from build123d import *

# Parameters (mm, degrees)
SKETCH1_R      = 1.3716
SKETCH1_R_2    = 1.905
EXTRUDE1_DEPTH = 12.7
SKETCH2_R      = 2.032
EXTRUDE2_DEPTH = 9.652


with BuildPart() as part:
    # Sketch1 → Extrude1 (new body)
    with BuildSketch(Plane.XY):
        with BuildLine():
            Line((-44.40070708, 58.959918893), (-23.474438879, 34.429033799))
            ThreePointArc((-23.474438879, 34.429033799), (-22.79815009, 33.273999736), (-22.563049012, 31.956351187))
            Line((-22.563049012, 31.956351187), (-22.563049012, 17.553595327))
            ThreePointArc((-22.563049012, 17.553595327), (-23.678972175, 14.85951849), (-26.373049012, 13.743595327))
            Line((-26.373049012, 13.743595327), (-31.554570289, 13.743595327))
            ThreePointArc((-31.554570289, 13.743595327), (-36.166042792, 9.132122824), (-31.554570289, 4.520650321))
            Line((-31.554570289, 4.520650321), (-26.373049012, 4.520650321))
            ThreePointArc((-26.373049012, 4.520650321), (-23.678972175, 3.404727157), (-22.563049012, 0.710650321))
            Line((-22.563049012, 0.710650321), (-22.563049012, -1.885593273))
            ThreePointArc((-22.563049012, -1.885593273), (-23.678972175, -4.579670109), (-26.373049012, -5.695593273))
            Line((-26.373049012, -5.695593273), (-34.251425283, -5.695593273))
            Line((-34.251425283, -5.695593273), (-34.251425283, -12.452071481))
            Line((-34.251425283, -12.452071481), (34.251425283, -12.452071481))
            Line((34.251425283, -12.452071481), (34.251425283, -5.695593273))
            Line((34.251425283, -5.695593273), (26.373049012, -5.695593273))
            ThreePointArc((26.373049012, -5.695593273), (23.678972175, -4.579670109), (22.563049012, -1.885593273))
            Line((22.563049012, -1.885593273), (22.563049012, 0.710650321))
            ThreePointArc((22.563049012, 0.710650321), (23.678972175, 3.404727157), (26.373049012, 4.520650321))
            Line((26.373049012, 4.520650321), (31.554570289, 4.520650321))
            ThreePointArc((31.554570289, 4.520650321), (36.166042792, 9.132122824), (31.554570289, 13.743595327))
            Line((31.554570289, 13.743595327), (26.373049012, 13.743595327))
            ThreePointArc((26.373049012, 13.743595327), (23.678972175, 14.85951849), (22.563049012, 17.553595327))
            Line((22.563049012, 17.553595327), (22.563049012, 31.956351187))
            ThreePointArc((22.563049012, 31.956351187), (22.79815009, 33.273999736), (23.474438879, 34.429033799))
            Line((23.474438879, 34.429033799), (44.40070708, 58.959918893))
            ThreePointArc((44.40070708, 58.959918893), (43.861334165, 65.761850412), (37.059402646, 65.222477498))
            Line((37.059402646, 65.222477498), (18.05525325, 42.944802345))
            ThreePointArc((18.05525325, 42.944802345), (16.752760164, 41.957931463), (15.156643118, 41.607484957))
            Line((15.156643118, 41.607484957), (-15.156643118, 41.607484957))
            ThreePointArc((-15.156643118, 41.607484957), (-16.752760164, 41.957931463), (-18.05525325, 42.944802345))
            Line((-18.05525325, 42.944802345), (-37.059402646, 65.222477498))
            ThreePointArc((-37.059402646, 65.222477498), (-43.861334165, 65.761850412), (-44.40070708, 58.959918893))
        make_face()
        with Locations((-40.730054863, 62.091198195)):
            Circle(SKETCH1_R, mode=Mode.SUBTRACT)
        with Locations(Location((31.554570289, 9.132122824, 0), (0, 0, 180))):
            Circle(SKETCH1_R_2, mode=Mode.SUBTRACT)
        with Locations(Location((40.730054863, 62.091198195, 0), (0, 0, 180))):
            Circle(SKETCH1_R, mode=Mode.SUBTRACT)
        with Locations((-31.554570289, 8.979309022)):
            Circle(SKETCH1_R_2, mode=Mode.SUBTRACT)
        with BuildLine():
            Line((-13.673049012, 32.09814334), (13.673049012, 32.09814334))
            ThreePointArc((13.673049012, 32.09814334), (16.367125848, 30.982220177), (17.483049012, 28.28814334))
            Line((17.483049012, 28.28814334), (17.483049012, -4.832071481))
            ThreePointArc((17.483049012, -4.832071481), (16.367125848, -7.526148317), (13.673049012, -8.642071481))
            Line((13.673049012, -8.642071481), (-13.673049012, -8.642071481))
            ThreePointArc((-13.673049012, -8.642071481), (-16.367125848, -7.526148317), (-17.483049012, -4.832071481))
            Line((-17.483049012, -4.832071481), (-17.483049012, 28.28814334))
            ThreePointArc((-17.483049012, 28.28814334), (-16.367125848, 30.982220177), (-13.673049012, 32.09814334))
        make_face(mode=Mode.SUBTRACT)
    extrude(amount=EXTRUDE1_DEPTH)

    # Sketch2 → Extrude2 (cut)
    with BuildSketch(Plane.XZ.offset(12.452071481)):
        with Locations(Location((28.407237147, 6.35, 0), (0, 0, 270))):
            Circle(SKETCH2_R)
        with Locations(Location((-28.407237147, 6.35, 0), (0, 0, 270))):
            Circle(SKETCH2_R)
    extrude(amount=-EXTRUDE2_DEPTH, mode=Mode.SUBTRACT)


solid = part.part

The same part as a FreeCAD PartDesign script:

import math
import FreeCAD as App
import Part
import Sketcher
Q = App.Units.Quantity

doc = App.newDocument("Part")
body = doc.addObject("PartDesign::Body", "Body")

sketch1 = doc.addObject("Sketcher::SketchObject", "Sketch")
body.addObject(sketch1)
sketch1.AttachmentSupport = (doc.XY_Plane, [""])
sketch1.MapMode = "FlatFace"
sketch1.addGeometry(Part.LineSegment(App.Vector(-44.4, 59, 0), App.Vector(-23.5, 34.4, 0)), False)
sketch1.addGeometry(Part.ArcOfCircle(Part.Circle(App.Vector(-26.4, 32, 0), App.Vector(0, 0, 1), 3.8), math.radians(0), math.radians(40)), False)
sketch1.addGeometry(Part.LineSegment(App.Vector(-22.6, 32, 0), App.Vector(-22.6, 17.6, 0)), False)
sketch1.addGeometry(Part.ArcOfCircle(Part.Circle(App.Vector(-26.4, 17.6, 0), App.Vector(0, 0, 1), 3.8), math.radians(-90), math.radians(0)), False)
sketch1.addGeometry(Part.LineSegment(App.Vector(-26.4, 13.7, 0), App.Vector(-31.6, 13.7, 0)), False)
sketch1.addGeometry(Part.ArcOfCircle(Part.Circle(App.Vector(-31.6, 9.1, 0), App.Vector(0, 0, 1), 4.6), math.radians(90), math.radians(270)), False)
sketch1.addGeometry(Part.LineSegment(App.Vector(-31.6, 4.5, 0), App.Vector(-26.4, 4.5, 0)), False)
sketch1.addGeometry(Part.ArcOfCircle(Part.Circle(App.Vector(-26.4, 0.7, 0), App.Vector(0, 0, 1), 3.8), math.radians(0), math.radians(90)), False)
sketch1.addGeometry(Part.LineSegment(App.Vector(-22.6, 0.7, 0), App.Vector(-22.6, -1.9, 0)), False)
sketch1.addGeometry(Part.ArcOfCircle(Part.Circle(App.Vector(-26.4, -1.9, 0), App.Vector(0, 0, 1), 3.8), math.radians(-90), math.radians(0)), False)
sketch1.addGeometry(Part.LineSegment(App.Vector(-26.4, -5.7, 0), App.Vector(-34.3, -5.7, 0)), False)
sketch1.addGeometry(Part.LineSegment(App.Vector(-34.3, -5.7, 0), App.Vector(-34.3, -12.5, 0)), False)
sketch1.addGeometry(Part.LineSegment(App.Vector(-34.3, -12.5, 0), App.Vector(34.3, -12.5, 0)), False)
sketch1.addGeometry(Part.LineSegment(App.Vector(34.3, -12.5, 0), App.Vector(34.3, -5.7, 0)), False)
sketch1.addGeometry(Part.LineSegment(App.Vector(34.3, -5.7, 0), App.Vector(26.4, -5.7, 0)), False)
sketch1.addGeometry(Part.ArcOfCircle(Part.Circle(App.Vector(26.4, -1.9, 0), App.Vector(0, 0, 1), 3.8), math.radians(180), math.radians(270)), False)
sketch1.addGeometry(Part.LineSegment(App.Vector(22.6, -1.9, 0), App.Vector(22.6, 0.7, 0)), False)
sketch1.addGeometry(Part.ArcOfCircle(Part.Circle(App.Vector(26.4, 0.7, 0), App.Vector(0, 0, 1), 3.8), math.radians(90), math.radians(180)), False)
sketch1.addGeometry(Part.LineSegment(App.Vector(26.4, 4.5, 0), App.Vector(31.6, 4.5, 0)), False)
sketch1.addGeometry(Part.ArcOfCircle(Part.Circle(App.Vector(31.6, 9.1, 0), App.Vector(0, 0, 1), 4.6), math.radians(-90), math.radians(90)), False)
sketch1.addGeometry(Part.LineSegment(App.Vector(31.6, 13.7, 0), App.Vector(26.4, 13.7, 0)), False)
sketch1.addGeometry(Part.ArcOfCircle(Part.Circle(App.Vector(26.4, 17.6, 0), App.Vector(0, 0, 1), 3.8), math.radians(180), math.radians(270)), False)
sketch1.addGeometry(Part.LineSegment(App.Vector(22.6, 17.6, 0), App.Vector(22.6, 32, 0)), False)
sketch1.addGeometry(Part.ArcOfCircle(Part.Circle(App.Vector(26.4, 32, 0), App.Vector(0, 0, 1), 3.8), math.radians(140), math.radians(180)), False)
sketch1.addGeometry(Part.LineSegment(App.Vector(23.5, 34.4, 0), App.Vector(44.4, 59, 0)), False)
sketch1.addGeometry(Part.ArcOfCircle(Part.Circle(App.Vector(40.7, 62.1, 0), App.Vector(0, 0, 1), 4.8), math.radians(-40), math.radians(140)), False)
sketch1.addGeometry(Part.LineSegment(App.Vector(37.1, 65.2, 0), App.Vector(18.1, 42.9, 0)), False)
sketch1.addGeometry(Part.ArcOfCircle(Part.Circle(App.Vector(15.2, 45.4, 0), App.Vector(0, 0, 1), 3.8), math.radians(-90), math.radians(-40)), False)
sketch1.addGeometry(Part.LineSegment(App.Vector(15.2, 41.6, 0), App.Vector(-15.2, 41.6, 0)), False)
sketch1.addGeometry(Part.ArcOfCircle(Part.Circle(App.Vector(-15.2, 45.4, 0), App.Vector(0, 0, 1), 3.8), math.radians(-140), math.radians(-90)), False)
sketch1.addGeometry(Part.LineSegment(App.Vector(-18.1, 42.9, 0), App.Vector(-37.1, 65.2, 0)), False)
sketch1.addGeometry(Part.ArcOfCircle(Part.Circle(App.Vector(-40.7, 62.1, 0), App.Vector(0, 0, 1), 4.8), math.radians(40), math.radians(220)), False)
sketch1.addGeometry(Part.Circle(App.Vector(-31.6, 9, 0), App.Vector(0, 0, 1), 1.9), False)
sketch1.addGeometry(Part.Circle(App.Vector(31.6, 9.1, 0), App.Vector(0, 0, 1), 1.9), False)
sketch1.addGeometry(Part.ArcOfCircle(Part.Circle(App.Vector(-13.7, 28.3, 0), App.Vector(0, 0, 1), 3.8), math.radians(90), math.radians(180)), False)
sketch1.addGeometry(Part.LineSegment(App.Vector(-13.7, 32.1, 0), App.Vector(13.7, 32.1, 0)), False)
sketch1.addGeometry(Part.ArcOfCircle(Part.Circle(App.Vector(13.7, 28.3, 0), App.Vector(0, 0, 1), 3.8), math.radians(0), math.radians(90)), False)
sketch1.addGeometry(Part.LineSegment(App.Vector(17.5, 28.3, 0), App.Vector(17.5, -4.8, 0)), False)
sketch1.addGeometry(Part.ArcOfCircle(Part.Circle(App.Vector(13.7, -4.8, 0), App.Vector(0, 0, 1), 3.8), math.radians(-90), math.radians(0)), False)
sketch1.addGeometry(Part.LineSegment(App.Vector(13.7, -8.6, 0), App.Vector(-13.7, -8.6, 0)), False)
sketch1.addGeometry(Part.ArcOfCircle(Part.Circle(App.Vector(-13.7, -4.8, 0), App.Vector(0, 0, 1), 3.8), math.radians(-180), math.radians(-90)), False)
sketch1.addGeometry(Part.LineSegment(App.Vector(-17.5, -4.8, 0), App.Vector(-17.5, 28.3, 0)), False)
sketch1.addGeometry(Part.Circle(App.Vector(-40.7, 62.1, 0), App.Vector(0, 0, 1), 1.4), False)
sketch1.addGeometry(Part.Circle(App.Vector(40.7, 62.1, 0), App.Vector(0, 0, 1), 1.4), False)
sketch1.addConstraint(Sketcher.Constraint("Tangent", 0, 2, 1, 2))
sketch1.addConstraint(Sketcher.Constraint("Tangent", 1, 1, 2, 1))
sketch1.addConstraint(Sketcher.Constraint("Tangent", 2, 2, 3, 2))
sketch1.addConstraint(Sketcher.Constraint("Tangent", 3, 1, 4, 1))
sketch1.addConstraint(Sketcher.Constraint("Tangent", 4, 2, 5, 1))
sketch1.addConstraint(Sketcher.Constraint("Tangent", 5, 2, 6, 1))
sketch1.addConstraint(Sketcher.Constraint("Tangent", 6, 2, 7, 2))
sketch1.addConstraint(Sketcher.Constraint("Tangent", 7, 1, 8, 1))
sketch1.addConstraint(Sketcher.Constraint("Tangent", 8, 2, 9, 2))
sketch1.addConstraint(Sketcher.Constraint("Tangent", 9, 1, 10, 1))
sketch1.addConstraint(Sketcher.Constraint("Coincident", 10, 2, 11, 1))
sketch1.addConstraint(Sketcher.Constraint("Coincident", 11, 2, 12, 1))
sketch1.addConstraint(Sketcher.Constraint("Coincident", 12, 2, 13, 1))
sketch1.addConstraint(Sketcher.Constraint("Coincident", 13, 2, 14, 1))
sketch1.addConstraint(Sketcher.Constraint("Tangent", 14, 2, 15, 2))
sketch1.addConstraint(Sketcher.Constraint("Tangent", 15, 1, 16, 1))
sketch1.addConstraint(Sketcher.Constraint("Tangent", 16, 2, 17, 2))
sketch1.addConstraint(Sketcher.Constraint("Tangent", 17, 1, 18, 1))
sketch1.addConstraint(Sketcher.Constraint("Tangent", 18, 2, 19, 1))
sketch1.addConstraint(Sketcher.Constraint("Tangent", 19, 2, 20, 1))
sketch1.addConstraint(Sketcher.Constraint("Tangent", 20, 2, 21, 2))
sketch1.addConstraint(Sketcher.Constraint("Tangent", 21, 1, 22, 1))
sketch1.addConstraint(Sketcher.Constraint("Tangent", 22, 2, 23, 2))
sketch1.addConstraint(Sketcher.Constraint("Tangent", 23, 1, 24, 1))
sketch1.addConstraint(Sketcher.Constraint("Tangent", 24, 2, 25, 1))
sketch1.addConstraint(Sketcher.Constraint("Tangent", 25, 2, 26, 1))
sketch1.addConstraint(Sketcher.Constraint("Tangent", 26, 2, 27, 2))
sketch1.addConstraint(Sketcher.Constraint("Tangent", 27, 1, 28, 1))
sketch1.addConstraint(Sketcher.Constraint("Tangent", 28, 2, 29, 2))
sketch1.addConstraint(Sketcher.Constraint("Tangent", 29, 1, 30, 1))
sketch1.addConstraint(Sketcher.Constraint("Tangent", 30, 2, 31, 1))
sketch1.addConstraint(Sketcher.Constraint("Tangent", 31, 2, 0, 1))
sketch1.addConstraint(Sketcher.Constraint("Tangent", 34, 1, 35, 1))
sketch1.addConstraint(Sketcher.Constraint("Tangent", 35, 2, 36, 2))
sketch1.addConstraint(Sketcher.Constraint("Tangent", 36, 1, 37, 1))
sketch1.addConstraint(Sketcher.Constraint("Tangent", 37, 2, 38, 2))
sketch1.addConstraint(Sketcher.Constraint("Tangent", 38, 1, 39, 1))
sketch1.addConstraint(Sketcher.Constraint("Tangent", 39, 2, 40, 2))
sketch1.addConstraint(Sketcher.Constraint("Tangent", 40, 1, 41, 1))
sketch1.addConstraint(Sketcher.Constraint("Tangent", 41, 2, 34, 2))
sketch1.addConstraint(Sketcher.Constraint("Vertical", 2))
sketch1.addConstraint(Sketcher.Constraint("Horizontal", 4))
sketch1.addConstraint(Sketcher.Constraint("Horizontal", 6))
sketch1.addConstraint(Sketcher.Constraint("Vertical", 8))
sketch1.addConstraint(Sketcher.Constraint("Horizontal", 10))
sketch1.addConstraint(Sketcher.Constraint("Vertical", 11))
sketch1.addConstraint(Sketcher.Constraint("Horizontal", 12))
sketch1.addConstraint(Sketcher.Constraint("Vertical", 13))
sketch1.addConstraint(Sketcher.Constraint("Horizontal", 14))
sketch1.addConstraint(Sketcher.Constraint("Vertical", 16))
sketch1.addConstraint(Sketcher.Constraint("Horizontal", 18))
sketch1.addConstraint(Sketcher.Constraint("Horizontal", 20))
sketch1.addConstraint(Sketcher.Constraint("Vertical", 22))
sketch1.addConstraint(Sketcher.Constraint("Horizontal", 28))
sketch1.addConstraint(Sketcher.Constraint("Horizontal", 35))
sketch1.addConstraint(Sketcher.Constraint("Vertical", 37))
sketch1.addConstraint(Sketcher.Constraint("Horizontal", 39))
sketch1.addConstraint(Sketcher.Constraint("Vertical", 41))
sketch1.addConstraint(Sketcher.Constraint("Coincident", 33, 3, 19, 3))
sketch1.addConstraint(Sketcher.Constraint("Coincident", 42, 3, 31, 3))
sketch1.addConstraint(Sketcher.Constraint("Coincident", 43, 3, 25, 3))
sketch1.addConstraint(Sketcher.Constraint("Equal", 1, 3))
sketch1.addConstraint(Sketcher.Constraint("Equal", 3, 7))
sketch1.addConstraint(Sketcher.Constraint("Equal", 7, 9))
sketch1.addConstraint(Sketcher.Constraint("Equal", 9, 15))
sketch1.addConstraint(Sketcher.Constraint("Equal", 15, 17))
sketch1.addConstraint(Sketcher.Constraint("Equal", 5, 19))
sketch1.addConstraint(Sketcher.Constraint("Equal", 17, 21))
sketch1.addConstraint(Sketcher.Constraint("Equal", 21, 23))
sketch1.addConstraint(Sketcher.Constraint("Equal", 23, 27))
sketch1.addConstraint(Sketcher.Constraint("Equal", 27, 29))
sketch1.addConstraint(Sketcher.Constraint("Equal", 25, 31))
sketch1.addConstraint(Sketcher.Constraint("Equal", 32, 33))
sketch1.addConstraint(Sketcher.Constraint("Equal", 29, 34))
sketch1.addConstraint(Sketcher.Constraint("Equal", 34, 36))
sketch1.addConstraint(Sketcher.Constraint("Equal", 36, 38))
sketch1.addConstraint(Sketcher.Constraint("Equal", 38, 40))
sketch1.addConstraint(Sketcher.Constraint("Equal", 42, 43))
sketch1.addConstraint(Sketcher.Constraint("Symmetric", 9, 3, 15, 3, -2))
sketch1.addConstraint(Sketcher.Constraint("Symmetric", 5, 3, 19, 3, -2))
sketch1.addConstraint(Sketcher.Constraint("Symmetric", 1, 3, 23, 3, -2))
sketch1.addConstraint(Sketcher.Constraint("Symmetric", 25, 3, 31, 3, -2))
sketch1.addConstraint(Sketcher.Constraint("Parallel", 24, 26))
sketch1.addConstraint(Sketcher.Constraint("Parallel", 0, 30))
sketch1.addConstraint(Sketcher.Constraint("Vertical", 3, 3, 7, 3))
sketch1.addConstraint(Sketcher.Constraint("Vertical", 5, 3, 32, 3))
sketch1.addConstraint(Sketcher.Constraint("Equal", 10, 14))
sketch1.addConstraint(Sketcher.Constraint("Diameter", 32, Q("0.15 in")))
sketch1.addConstraint(Sketcher.Constraint("Radius", 1, Q("0.15 in")))
sketch1.addConstraint(Sketcher.Constraint("Diameter", 42, Q("0.108 in")))
sketch1.addConstraint(Sketcher.Constraint("Radius", 25, Q("4.82479 mm")))
sketch1.addConstraint(Sketcher.Constraint("DistanceX", 35, 1, 35, 2, Q("27.346098 mm")))
sketch1.addConstraint(Sketcher.Constraint("Radius", 5, Q("4.611473 mm")))
sketch1.addConstraint(Sketcher.Constraint("DistanceX", 4, 2, 4, 1, Q("5.181521 mm")))
sketch1.addConstraint(Sketcher.Constraint("DistanceX", 12, 1, 12, 2, Q("68.502851 mm")))
sketch1.addConstraint(Sketcher.Constraint("DistanceY", 11, 2, 11, 1, Q("6.756478 mm")))
sketch1.addConstraint(Sketcher.Constraint("DistanceY", -1, 1, 25, 3, Q("62.091198 mm")))
sketch1.addConstraint(Sketcher.Constraint("Distance", 0, Q("32.243961 mm")))
sketch1.addConstraint(Sketcher.Constraint("Distance", 26, Q("29.28229 mm")))
sketch1.addConstraint(Sketcher.Constraint("DistanceX", 10, 2, 10, 1, Q("7.878376 mm")))
sketch1.addConstraint(Sketcher.Constraint("DistanceX", 28, 2, 28, 1, Q("30.313286 mm")))
sketch1.addConstraint(Sketcher.Constraint("DistanceY", 2, 2, 2, 1, Q("14.402756 mm")))
sketch1.addConstraint(Sketcher.Constraint("DistanceY", 8, 2, 8, 1, Q("2.596244 mm")))
sketch1.addConstraint(Sketcher.Constraint("DistanceY", 37, 2, 37, 1, Q("33.120215 mm")))
sketch1.addConstraint(Sketcher.Constraint("DistanceY", -1, 1, 32, 3, Q("8.979309 mm")))
sketch1.addConstraint(Sketcher.Constraint("DistanceX", 34, 3, -1, 1, Q("13.673049 mm")))
sketch1.addConstraint(Sketcher.Constraint("DistanceY", 38, 3, -1, 1, Q("4.832071 mm")))
pad1 = doc.addObject("PartDesign::Pad", "Pad")
body.addObject(pad1)
pad1.Profile = sketch1
pad1.Length = Q("0.5 in")

sketch2 = doc.addObject("Sketcher::SketchObject", "Sketch001")
body.addObject(sketch2)
sketch2.AttachmentSupport = (doc.XZ_Plane, [""])
sketch2.MapMode = "FlatFace"
sketch2.AttachmentOffset = App.Placement(App.Vector(0, 0, 12.452071), App.Rotation())
sketch2.addGeometry(Part.Circle(App.Vector(28.4, 6.3, 0), App.Vector(0, 0, 1), 2), False)
sketch2.addGeometry(Part.Circle(App.Vector(-28.4, 6.3, 0), App.Vector(0, 0, 1), 2), False)
sketch2.addConstraint(Sketcher.Constraint("Equal", 0, 1))
sketch2.addConstraint(Sketcher.Constraint("Symmetric", 0, 3, 1, 3, -2))
sketch2.addConstraint(Sketcher.Constraint("Diameter", 0, Q("0.16 in")))
sketch2.addConstraint(Sketcher.Constraint("DistanceY", -1, 1, 0, 3, Q("0.25 in")))
sketch2.addConstraint(Sketcher.Constraint("DistanceX", -1, 1, 0, 3, Q("28.407237 mm")))
pocket1 = doc.addObject("PartDesign::Pocket", "Pocket")
body.addObject(pocket1)
pocket1.Profile = sketch2
pocket1.Length = Q("0.38 in")

doc.recompute()
